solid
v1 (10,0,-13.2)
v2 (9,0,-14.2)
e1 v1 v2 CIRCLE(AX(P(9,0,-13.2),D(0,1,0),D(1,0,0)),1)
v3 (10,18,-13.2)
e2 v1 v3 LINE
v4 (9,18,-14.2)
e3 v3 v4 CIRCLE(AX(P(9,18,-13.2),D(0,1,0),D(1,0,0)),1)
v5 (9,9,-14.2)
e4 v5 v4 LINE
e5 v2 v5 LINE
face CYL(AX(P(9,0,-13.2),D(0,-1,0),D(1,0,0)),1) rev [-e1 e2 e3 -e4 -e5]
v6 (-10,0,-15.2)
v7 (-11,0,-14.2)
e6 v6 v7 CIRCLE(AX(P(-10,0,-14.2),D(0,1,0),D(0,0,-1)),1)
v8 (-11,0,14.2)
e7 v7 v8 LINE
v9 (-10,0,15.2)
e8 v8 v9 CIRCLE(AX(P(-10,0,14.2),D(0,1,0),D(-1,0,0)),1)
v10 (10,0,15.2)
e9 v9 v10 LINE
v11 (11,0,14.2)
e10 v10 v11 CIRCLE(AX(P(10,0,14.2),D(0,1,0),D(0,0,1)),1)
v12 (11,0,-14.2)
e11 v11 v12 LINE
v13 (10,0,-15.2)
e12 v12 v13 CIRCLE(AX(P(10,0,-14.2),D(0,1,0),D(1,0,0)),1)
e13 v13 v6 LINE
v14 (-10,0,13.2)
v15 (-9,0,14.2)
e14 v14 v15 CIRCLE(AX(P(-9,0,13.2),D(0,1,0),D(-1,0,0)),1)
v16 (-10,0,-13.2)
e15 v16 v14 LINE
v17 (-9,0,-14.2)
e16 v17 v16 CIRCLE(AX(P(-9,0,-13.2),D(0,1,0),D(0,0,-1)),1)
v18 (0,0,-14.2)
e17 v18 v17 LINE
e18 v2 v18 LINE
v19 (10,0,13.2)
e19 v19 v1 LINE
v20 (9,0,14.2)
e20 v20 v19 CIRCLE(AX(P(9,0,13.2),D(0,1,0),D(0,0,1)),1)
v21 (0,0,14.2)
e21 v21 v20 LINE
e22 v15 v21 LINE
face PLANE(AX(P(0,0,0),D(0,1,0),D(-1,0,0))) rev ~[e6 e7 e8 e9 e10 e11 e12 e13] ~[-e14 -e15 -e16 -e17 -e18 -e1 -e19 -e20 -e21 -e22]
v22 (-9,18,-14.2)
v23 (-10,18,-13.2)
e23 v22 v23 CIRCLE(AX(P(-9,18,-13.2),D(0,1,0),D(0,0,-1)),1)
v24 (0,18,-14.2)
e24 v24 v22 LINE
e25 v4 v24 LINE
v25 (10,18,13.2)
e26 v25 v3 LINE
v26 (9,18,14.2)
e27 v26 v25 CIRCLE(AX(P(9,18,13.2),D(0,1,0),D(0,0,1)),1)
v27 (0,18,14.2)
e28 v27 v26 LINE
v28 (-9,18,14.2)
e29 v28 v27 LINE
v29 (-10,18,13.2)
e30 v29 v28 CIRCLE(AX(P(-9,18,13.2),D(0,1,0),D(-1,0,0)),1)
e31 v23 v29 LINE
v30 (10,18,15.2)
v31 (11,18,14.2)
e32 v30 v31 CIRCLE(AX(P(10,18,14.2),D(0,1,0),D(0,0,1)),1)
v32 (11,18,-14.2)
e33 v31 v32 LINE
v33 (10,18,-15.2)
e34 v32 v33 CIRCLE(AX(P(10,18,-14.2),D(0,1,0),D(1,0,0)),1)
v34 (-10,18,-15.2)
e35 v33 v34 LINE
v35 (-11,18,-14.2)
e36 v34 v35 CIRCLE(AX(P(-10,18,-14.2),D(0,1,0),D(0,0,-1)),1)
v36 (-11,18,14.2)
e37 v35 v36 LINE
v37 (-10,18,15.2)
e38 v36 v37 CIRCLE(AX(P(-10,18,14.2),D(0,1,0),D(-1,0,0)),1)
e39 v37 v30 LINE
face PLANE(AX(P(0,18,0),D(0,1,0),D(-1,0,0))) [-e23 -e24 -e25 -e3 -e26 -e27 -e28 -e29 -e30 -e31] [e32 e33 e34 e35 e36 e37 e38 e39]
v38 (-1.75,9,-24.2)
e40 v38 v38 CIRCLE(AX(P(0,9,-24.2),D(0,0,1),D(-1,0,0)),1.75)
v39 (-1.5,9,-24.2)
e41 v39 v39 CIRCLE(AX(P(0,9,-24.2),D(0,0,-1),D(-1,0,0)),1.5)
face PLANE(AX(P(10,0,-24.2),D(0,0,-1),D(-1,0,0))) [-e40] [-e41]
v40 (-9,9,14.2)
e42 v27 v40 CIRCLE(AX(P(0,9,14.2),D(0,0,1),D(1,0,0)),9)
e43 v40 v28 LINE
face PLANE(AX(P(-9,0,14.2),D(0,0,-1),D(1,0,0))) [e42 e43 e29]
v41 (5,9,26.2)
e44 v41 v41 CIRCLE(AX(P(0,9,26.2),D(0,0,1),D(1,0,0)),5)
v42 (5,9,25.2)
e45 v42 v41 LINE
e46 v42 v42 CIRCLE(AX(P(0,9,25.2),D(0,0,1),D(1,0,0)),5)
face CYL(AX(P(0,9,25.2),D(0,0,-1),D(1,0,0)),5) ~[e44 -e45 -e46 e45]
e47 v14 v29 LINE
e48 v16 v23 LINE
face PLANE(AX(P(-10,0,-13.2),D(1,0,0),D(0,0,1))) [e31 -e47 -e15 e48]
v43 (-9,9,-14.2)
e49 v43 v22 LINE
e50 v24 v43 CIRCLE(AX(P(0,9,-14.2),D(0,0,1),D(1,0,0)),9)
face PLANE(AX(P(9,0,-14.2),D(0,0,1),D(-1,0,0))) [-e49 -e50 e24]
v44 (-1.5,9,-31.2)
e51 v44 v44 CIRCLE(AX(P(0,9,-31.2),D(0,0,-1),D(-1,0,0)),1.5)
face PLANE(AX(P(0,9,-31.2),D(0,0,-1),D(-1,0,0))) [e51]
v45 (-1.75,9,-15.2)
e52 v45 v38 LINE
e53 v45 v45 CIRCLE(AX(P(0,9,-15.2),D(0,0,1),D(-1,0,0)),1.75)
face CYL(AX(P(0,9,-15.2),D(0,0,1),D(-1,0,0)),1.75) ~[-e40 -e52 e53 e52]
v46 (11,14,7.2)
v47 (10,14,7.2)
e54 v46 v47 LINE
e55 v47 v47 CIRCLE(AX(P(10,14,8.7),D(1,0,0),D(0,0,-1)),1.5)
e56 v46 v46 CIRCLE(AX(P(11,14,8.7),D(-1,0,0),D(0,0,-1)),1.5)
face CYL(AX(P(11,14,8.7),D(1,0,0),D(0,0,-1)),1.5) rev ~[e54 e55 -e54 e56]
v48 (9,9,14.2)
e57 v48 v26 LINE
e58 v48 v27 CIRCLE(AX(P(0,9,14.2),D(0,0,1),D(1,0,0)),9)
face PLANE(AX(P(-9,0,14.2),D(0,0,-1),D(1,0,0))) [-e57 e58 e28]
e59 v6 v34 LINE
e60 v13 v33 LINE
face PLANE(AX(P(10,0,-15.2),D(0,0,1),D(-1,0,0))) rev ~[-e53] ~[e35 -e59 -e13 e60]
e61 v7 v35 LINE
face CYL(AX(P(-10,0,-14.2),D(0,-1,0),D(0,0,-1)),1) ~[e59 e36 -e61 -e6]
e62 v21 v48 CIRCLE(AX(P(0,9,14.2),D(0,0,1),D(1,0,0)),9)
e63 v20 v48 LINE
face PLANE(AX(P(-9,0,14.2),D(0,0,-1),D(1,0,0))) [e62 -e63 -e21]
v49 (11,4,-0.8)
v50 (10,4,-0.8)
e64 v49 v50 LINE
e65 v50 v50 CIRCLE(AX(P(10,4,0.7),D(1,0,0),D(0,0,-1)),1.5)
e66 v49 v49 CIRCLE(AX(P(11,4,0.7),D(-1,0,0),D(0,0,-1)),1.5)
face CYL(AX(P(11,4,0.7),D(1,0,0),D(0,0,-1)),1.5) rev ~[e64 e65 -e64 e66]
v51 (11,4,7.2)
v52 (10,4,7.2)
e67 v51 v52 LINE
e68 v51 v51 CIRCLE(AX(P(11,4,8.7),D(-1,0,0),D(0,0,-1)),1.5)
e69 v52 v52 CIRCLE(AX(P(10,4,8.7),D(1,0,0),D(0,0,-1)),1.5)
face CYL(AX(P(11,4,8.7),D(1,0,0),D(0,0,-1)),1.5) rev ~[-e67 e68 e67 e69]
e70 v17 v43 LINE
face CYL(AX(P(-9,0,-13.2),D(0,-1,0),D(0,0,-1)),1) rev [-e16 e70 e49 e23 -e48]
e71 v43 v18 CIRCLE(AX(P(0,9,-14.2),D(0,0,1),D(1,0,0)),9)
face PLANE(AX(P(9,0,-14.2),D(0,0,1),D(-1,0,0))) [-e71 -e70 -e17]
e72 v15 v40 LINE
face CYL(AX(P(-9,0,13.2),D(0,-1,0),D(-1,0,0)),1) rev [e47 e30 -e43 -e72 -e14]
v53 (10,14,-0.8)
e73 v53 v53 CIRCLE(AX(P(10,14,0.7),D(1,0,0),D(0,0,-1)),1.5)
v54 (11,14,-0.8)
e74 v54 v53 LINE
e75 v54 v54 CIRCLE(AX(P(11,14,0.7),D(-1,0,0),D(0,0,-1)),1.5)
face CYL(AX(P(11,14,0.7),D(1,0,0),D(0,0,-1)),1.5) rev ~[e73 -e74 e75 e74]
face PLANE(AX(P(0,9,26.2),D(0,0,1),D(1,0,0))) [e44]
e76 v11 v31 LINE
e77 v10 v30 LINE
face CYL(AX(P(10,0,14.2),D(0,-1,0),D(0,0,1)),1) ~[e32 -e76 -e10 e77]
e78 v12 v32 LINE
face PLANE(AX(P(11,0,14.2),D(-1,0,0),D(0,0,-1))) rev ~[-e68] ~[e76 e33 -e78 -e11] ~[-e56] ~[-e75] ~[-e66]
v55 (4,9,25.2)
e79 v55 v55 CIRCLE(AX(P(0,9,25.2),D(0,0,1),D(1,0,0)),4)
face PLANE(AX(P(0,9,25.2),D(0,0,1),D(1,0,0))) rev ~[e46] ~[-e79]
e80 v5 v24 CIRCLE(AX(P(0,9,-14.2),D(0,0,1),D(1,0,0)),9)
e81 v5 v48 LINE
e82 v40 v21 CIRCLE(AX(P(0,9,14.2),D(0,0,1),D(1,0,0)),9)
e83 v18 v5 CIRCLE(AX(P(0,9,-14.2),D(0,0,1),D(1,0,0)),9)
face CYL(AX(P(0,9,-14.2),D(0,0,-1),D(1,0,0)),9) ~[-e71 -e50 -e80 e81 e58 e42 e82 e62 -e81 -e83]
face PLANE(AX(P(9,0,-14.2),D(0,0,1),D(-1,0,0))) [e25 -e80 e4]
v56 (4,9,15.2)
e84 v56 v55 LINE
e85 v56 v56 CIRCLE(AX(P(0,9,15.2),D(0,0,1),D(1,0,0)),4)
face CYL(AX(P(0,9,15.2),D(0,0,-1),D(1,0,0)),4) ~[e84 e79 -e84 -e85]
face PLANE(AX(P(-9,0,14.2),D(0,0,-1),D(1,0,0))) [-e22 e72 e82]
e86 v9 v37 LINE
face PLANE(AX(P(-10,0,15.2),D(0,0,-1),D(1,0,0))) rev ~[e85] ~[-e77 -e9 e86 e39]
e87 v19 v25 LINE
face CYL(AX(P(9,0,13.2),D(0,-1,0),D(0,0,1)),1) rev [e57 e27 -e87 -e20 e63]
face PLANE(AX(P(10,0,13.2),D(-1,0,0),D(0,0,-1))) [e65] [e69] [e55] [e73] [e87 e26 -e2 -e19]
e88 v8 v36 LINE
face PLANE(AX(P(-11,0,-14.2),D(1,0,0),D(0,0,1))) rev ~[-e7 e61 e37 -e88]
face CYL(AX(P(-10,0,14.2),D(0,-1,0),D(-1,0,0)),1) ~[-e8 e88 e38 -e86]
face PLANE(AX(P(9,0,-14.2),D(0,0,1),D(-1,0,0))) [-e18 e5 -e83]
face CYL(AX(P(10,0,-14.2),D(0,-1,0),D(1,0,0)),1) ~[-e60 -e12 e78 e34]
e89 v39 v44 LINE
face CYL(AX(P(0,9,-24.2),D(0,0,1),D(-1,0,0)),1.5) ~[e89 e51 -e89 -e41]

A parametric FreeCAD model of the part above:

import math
import FreeCAD as App
import Part
import Sketcher
Q = App.Units.Quantity

doc = App.newDocument("Part")
body = doc.addObject("PartDesign::Body", "Body")

# Sketch on XZ plane
sketch1 = body.newObject("Sketcher::SketchObject", "Sketch")
sketch1.AttachmentSupport = (doc.getObject("XZ_Plane"), [""])
sketch1.MapMode = "FlatFace"
sketch1.addGeometry(Part.ArcOfCircle(Part.Circle(App.Vector(10, 14.2, 0), App.Vector(0, 0, 1), 1), math.radians(0), math.radians(90)), False)
sketch1.addGeometry(Part.LineSegment(App.Vector(11, 14.2, 0), App.Vector(11, -14.2, 0)), False)
sketch1.addGeometry(Part.ArcOfCircle(Part.Circle(App.Vector(10, -14.2, 0), App.Vector(0, 0, 1), 1), math.radians(-90), math.radians(0)), False)
sketch1.addGeometry(Part.LineSegment(App.Vector(10, -15.2, 0), App.Vector(-10, -15.2, 0)), False)
sketch1.addGeometry(Part.ArcOfCircle(Part.Circle(App.Vector(-10, -14.2, 0), App.Vector(0, 0, 1), 1), math.radians(180), math.radians(270)), False)
sketch1.addGeometry(Part.LineSegment(App.Vector(-11, -14.2, 0), App.Vector(-11, 14.2, 0)), False)
sketch1.addGeometry(Part.ArcOfCircle(Part.Circle(App.Vector(-10, 14.2, 0), App.Vector(0, 0, 1), 1), math.radians(90), math.radians(180)), False)
sketch1.addGeometry(Part.LineSegment(App.Vector(-10, 15.2, 0), App.Vector(10, 15.2, 0)), False)
sketch1.addGeometry(Part.LineSegment(App.Vector(10, -13.2, 0), App.Vector(10, 13.2, 0)), False)
sketch1.addGeometry(Part.ArcOfCircle(Part.Circle(App.Vector(9, 13.2, 0), App.Vector(0, 0, 1), 1), math.radians(0), math.radians(90)), False)
sketch1.addGeometry(Part.LineSegment(App.Vector(9, 14.2, 0), App.Vector(-9, 14.2, 0)), False)
sketch1.addGeometry(Part.ArcOfCircle(Part.Circle(App.Vector(-9, 13.2, 0), App.Vector(0, 0, 1), 1), math.radians(90), math.radians(180)), False)
sketch1.addGeometry(Part.LineSegment(App.Vector(-10, 13.2, 0), App.Vector(-10, -13.2, 0)), False)
sketch1.addGeometry(Part.ArcOfCircle(Part.Circle(App.Vector(-9, -13.2, 0), App.Vector(0, 0, 1), 1), math.radians(180), math.radians(270)), False)
sketch1.addGeometry(Part.LineSegment(App.Vector(-9, -14.2, 0), App.Vector(9, -14.2, 0)), False)
sketch1.addGeometry(Part.ArcOfCircle(Part.Circle(App.Vector(9, -13.2, 0), App.Vector(0, 0, 1), 1), math.radians(-90), math.radians(0)), False)
sketch1.addConstraint(Sketcher.Constraint("Tangent", 0, 1, 1, 1))
sketch1.addConstraint(Sketcher.Constraint("Tangent", 1, 2, 2, 2))
sketch1.addConstraint(Sketcher.Constraint("Tangent", 2, 1, 3, 1))
sketch1.addConstraint(Sketcher.Constraint("Tangent", 3, 2, 4, 2))
sketch1.addConstraint(Sketcher.Constraint("Tangent", 4, 1, 5, 1))
sketch1.addConstraint(Sketcher.Constraint("Tangent", 5, 2, 6, 2))
sketch1.addConstraint(Sketcher.Constraint("Tangent", 6, 1, 7, 1))
sketch1.addConstraint(Sketcher.Constraint("Tangent", 7, 2, 0, 2))
sketch1.addConstraint(Sketcher.Constraint("Tangent", 8, 2, 9, 1))
sketch1.addConstraint(Sketcher.Constraint("Tangent", 9, 2, 10, 1))
sketch1.addConstraint(Sketcher.Constraint("Tangent", 10, 2, 11, 1))
sketch1.addConstraint(Sketcher.Constraint("Tangent", 11, 2, 12, 1))
sketch1.addConstraint(Sketcher.Constraint("Tangent", 12, 2, 13, 1))
sketch1.addConstraint(Sketcher.Constraint("Tangent", 13, 2, 14, 1))
sketch1.addConstraint(Sketcher.Constraint("Tangent", 14, 2, 15, 1))
sketch1.addConstraint(Sketcher.Constraint("Tangent", 15, 2, 8, 1))
sketch1.addConstraint(Sketcher.Constraint("Vertical", 1))
sketch1.addConstraint(Sketcher.Constraint("Horizontal", 3))
sketch1.addConstraint(Sketcher.Constraint("Vertical", 5))
sketch1.addConstraint(Sketcher.Constraint("Horizontal", 7))
sketch1.addConstraint(Sketcher.Constraint("Vertical", 8))
sketch1.addConstraint(Sketcher.Constraint("Horizontal", 10))
sketch1.addConstraint(Sketcher.Constraint("Vertical", 12))
sketch1.addConstraint(Sketcher.Constraint("Horizontal", 14))
sketch1.addConstraint(Sketcher.Constraint("Equal", 0, 2))
sketch1.addConstraint(Sketcher.Constraint("Equal", 2, 4))
sketch1.addConstraint(Sketcher.Constraint("Equal", 4, 6))
sketch1.addConstraint(Sketcher.Constraint("Equal", 6, 9))
sketch1.addConstraint(Sketcher.Constraint("Equal", 9, 11))
sketch1.addConstraint(Sketcher.Constraint("Equal", 11, 13))
sketch1.addConstraint(Sketcher.Constraint("Equal", 13, 15))
sketch1.addConstraint(Sketcher.Constraint("Symmetric", 0, 3, 4, 3, -1, 1))
sketch1.addConstraint(Sketcher.Constraint("Symmetric", 9, 3, 13, 3, -1, 1))
sketch1.addConstraint(Sketcher.Constraint("Horizontal", 5, 2, 9, 2))
sketch1.addConstraint(Sketcher.Constraint("Vertical", 7, 2, 8, 2))
sketch1.addConstraint(Sketcher.Constraint("Radius", 0, Q("1 mm")))
sketch1.addConstraint(Sketcher.Constraint("DistanceX", 3, 2, 3, 1, Q("20 mm")))
sketch1.addConstraint(Sketcher.Constraint("DistanceY", 1, 2, 1, 1, Q("28.4 mm")))
pad1 = body.newObject("PartDesign::Pad", "Pad")
pad1.Profile = sketch1
pad1.Length = 18
pad1.Reversed = True

# Sketch on XY plane
sketch2 = body.newObject("Sketcher::SketchObject", "Sketch001")
sketch2.AttachmentSupport = (doc.getObject("XY_Plane"), [""])
sketch2.MapMode = "FlatFace"
sketch2.AttachmentOffset = App.Placement(App.Vector(0, 0, -14.2), App.Rotation())
sketch2.addGeometry(Part.Circle(App.Vector(0, 9, 0), App.Vector(0, 0, 1), 9), False)
sketch2.addConstraint(Sketcher.Constraint("PointOnObject", 0, 3, -2))
sketch2.addConstraint(Sketcher.Constraint("Diameter", 0, Q("18 mm")))
sketch2.addConstraint(Sketcher.Constraint("DistanceY", -1, 1, 0, 3, Q("9 mm")))
pad2 = body.newObject("PartDesign::Pad", "Pad001")
pad2.Profile = sketch2
pad2.Length = 28.4

# Sketch on XY plane
sketch3 = body.newObject("Sketcher::SketchObject", "Sketch002")
sketch3.AttachmentSupport = (doc.getObject("XY_Plane"), [""])
sketch3.MapMode = "FlatFace"
sketch3.AttachmentOffset = App.Placement(App.Vector(0, 0, 15.2), App.Rotation())
sketch3.addGeometry(Part.Circle(App.Vector(0, 9, 0), App.Vector(0, 0, 1), 4), False)
sketch3.addConstraint(Sketcher.Constraint("PointOnObject", 0, 3, -2))
sketch3.addConstraint(Sketcher.Constraint("Diameter", 0, Q("8 mm")))
sketch3.addConstraint(Sketcher.Constraint("DistanceY", -1, 1, 0, 3, Q("9 mm")))
pad3 = body.newObject("PartDesign::Pad", "Pad002")
pad3.Profile = sketch3
pad3.Length = 10

# Sketch on XY plane
sketch4 = body.newObject("Sketcher::SketchObject", "Sketch003")
sketch4.AttachmentSupport = (doc.getObject("XY_Plane"), [""])
sketch4.MapMode = "FlatFace"
sketch4.AttachmentOffset = App.Placement(App.Vector(0, 0, 25.2), App.Rotation())
sketch4.addGeometry(Part.Circle(App.Vector(0, 9, 0), App.Vector(0, 0, 1), 5), False)
sketch4.addConstraint(Sketcher.Constraint("PointOnObject", 0, 3, -2))
sketch4.addConstraint(Sketcher.Constraint("Diameter", 0, Q("10 mm")))
sketch4.addConstraint(Sketcher.Constraint("DistanceY", -1, 1, 0, 3, Q("9 mm")))
pad4 = body.newObject("PartDesign::Pad", "Pad003")
pad4.Profile = sketch4
pad4.Length = 1

# Sketch on XY plane
sketch5 = body.newObject("Sketcher::SketchObject", "Sketch004")
sketch5.AttachmentSupport = (doc.getObject("XY_Plane"), [""])
sketch5.MapMode = "FlatFace"
sketch5.AttachmentOffset = App.Placement(App.Vector(0, 0, -15.2), App.Rotation())
sketch5.addGeometry(Part.Circle(App.Vector(0, 9, 0), App.Vector(0, 0, 1), 1.75), False)
sketch5.addConstraint(Sketcher.Constraint("PointOnObject", 0, 3, -2))
sketch5.addConstraint(Sketcher.Constraint("Diameter", 0, Q("3.5 mm")))
sketch5.addConstraint(Sketcher.Constraint("DistanceY", -1, 1, 0, 3, Q("9 mm")))
pad5 = body.newObject("PartDesign::Pad", "Pad004")
pad5.Profile = sketch5
pad5.Length = 9
pad5.Reversed = True

# Sketch on YZ plane
sketch6 = body.newObject("Sketcher::SketchObject", "Sketch005")
sketch6.AttachmentSupport = (doc.getObject("YZ_Plane"), [""])
sketch6.MapMode = "FlatFace"
sketch6.AttachmentOffset = App.Placement(App.Vector(0, 0, 11), App.Rotation())
sketch6.addGeometry(Part.Circle(App.Vector(14, 8.7, 0), App.Vector(0, 0, 1), 1.5), False)
sketch6.addGeometry(Part.Circle(App.Vector(14, 0.7, 0), App.Vector(0, 0, 1), 1.5), False)
sketch6.addGeometry(Part.Circle(App.Vector(4, 0.7, 0), App.Vector(0, 0, 1), 1.5), False)
sketch6.addGeometry(Part.Circle(App.Vector(4, 8.7, 0), App.Vector(0, 0, 1), 1.5), False)
sketch6.addConstraint(Sketcher.Constraint("Equal", 0, 1))
sketch6.addConstraint(Sketcher.Constraint("Equal", 1, 2))
sketch6.addConstraint(Sketcher.Constraint("Equal", 2, 3))
sketch6.addConstraint(Sketcher.Constraint("Horizontal", 1, 3, 2, 3))
sketch6.addConstraint(Sketcher.Constraint("Horizontal", 0, 3, 3, 3))
sketch6.addConstraint(Sketcher.Constraint("Vertical", 0, 3, 1, 3))
sketch6.addConstraint(Sketcher.Constraint("Vertical", 2, 3, 3, 3))
sketch6.addConstraint(Sketcher.Constraint("Diameter", 0, Q("3 mm")))
sketch6.addConstraint(Sketcher.Constraint("DistanceY", 1, 3, 0, 3, Q("8 mm")))
sketch6.addConstraint(Sketcher.Constraint("DistanceX", 2, 3, 1, 3, Q("10 mm")))
sketch6.addConstraint(Sketcher.Constraint("DistanceX", -1, 1, 0, 3, Q("14 mm")))
sketch6.addConstraint(Sketcher.Constraint("DistanceY", -1, 1, 0, 3, Q("8.7 mm")))
pocket1 = body.newObject("PartDesign::Pocket", "Pocket")
pocket1.Profile = sketch6
pocket1.Length = 2

# Sketch on XY plane
sketch7 = body.newObject("Sketcher::SketchObject", "Sketch006")
sketch7.AttachmentSupport = (doc.getObject("XY_Plane"), [""])
sketch7.MapMode = "FlatFace"
sketch7.AttachmentOffset = App.Placement(App.Vector(0, 0, -24.2), App.Rotation())
sketch7.addGeometry(Part.Circle(App.Vector(0, 9, 0), App.Vector(0, 0, 1), 1.5), False)
sketch7.addConstraint(Sketcher.Constraint("PointOnObject", 0, 3, -2))
sketch7.addConstraint(Sketcher.Constraint("Diameter", 0, Q("3 mm")))
sketch7.addConstraint(Sketcher.Constraint("DistanceY", -1, 1, 0, 3, Q("9 mm")))
pad6 = body.newObject("PartDesign::Pad", "Pad005")
pad6.Profile = sketch7
pad6.Length = 7
pad6.Reversed = True

doc.recompute()
